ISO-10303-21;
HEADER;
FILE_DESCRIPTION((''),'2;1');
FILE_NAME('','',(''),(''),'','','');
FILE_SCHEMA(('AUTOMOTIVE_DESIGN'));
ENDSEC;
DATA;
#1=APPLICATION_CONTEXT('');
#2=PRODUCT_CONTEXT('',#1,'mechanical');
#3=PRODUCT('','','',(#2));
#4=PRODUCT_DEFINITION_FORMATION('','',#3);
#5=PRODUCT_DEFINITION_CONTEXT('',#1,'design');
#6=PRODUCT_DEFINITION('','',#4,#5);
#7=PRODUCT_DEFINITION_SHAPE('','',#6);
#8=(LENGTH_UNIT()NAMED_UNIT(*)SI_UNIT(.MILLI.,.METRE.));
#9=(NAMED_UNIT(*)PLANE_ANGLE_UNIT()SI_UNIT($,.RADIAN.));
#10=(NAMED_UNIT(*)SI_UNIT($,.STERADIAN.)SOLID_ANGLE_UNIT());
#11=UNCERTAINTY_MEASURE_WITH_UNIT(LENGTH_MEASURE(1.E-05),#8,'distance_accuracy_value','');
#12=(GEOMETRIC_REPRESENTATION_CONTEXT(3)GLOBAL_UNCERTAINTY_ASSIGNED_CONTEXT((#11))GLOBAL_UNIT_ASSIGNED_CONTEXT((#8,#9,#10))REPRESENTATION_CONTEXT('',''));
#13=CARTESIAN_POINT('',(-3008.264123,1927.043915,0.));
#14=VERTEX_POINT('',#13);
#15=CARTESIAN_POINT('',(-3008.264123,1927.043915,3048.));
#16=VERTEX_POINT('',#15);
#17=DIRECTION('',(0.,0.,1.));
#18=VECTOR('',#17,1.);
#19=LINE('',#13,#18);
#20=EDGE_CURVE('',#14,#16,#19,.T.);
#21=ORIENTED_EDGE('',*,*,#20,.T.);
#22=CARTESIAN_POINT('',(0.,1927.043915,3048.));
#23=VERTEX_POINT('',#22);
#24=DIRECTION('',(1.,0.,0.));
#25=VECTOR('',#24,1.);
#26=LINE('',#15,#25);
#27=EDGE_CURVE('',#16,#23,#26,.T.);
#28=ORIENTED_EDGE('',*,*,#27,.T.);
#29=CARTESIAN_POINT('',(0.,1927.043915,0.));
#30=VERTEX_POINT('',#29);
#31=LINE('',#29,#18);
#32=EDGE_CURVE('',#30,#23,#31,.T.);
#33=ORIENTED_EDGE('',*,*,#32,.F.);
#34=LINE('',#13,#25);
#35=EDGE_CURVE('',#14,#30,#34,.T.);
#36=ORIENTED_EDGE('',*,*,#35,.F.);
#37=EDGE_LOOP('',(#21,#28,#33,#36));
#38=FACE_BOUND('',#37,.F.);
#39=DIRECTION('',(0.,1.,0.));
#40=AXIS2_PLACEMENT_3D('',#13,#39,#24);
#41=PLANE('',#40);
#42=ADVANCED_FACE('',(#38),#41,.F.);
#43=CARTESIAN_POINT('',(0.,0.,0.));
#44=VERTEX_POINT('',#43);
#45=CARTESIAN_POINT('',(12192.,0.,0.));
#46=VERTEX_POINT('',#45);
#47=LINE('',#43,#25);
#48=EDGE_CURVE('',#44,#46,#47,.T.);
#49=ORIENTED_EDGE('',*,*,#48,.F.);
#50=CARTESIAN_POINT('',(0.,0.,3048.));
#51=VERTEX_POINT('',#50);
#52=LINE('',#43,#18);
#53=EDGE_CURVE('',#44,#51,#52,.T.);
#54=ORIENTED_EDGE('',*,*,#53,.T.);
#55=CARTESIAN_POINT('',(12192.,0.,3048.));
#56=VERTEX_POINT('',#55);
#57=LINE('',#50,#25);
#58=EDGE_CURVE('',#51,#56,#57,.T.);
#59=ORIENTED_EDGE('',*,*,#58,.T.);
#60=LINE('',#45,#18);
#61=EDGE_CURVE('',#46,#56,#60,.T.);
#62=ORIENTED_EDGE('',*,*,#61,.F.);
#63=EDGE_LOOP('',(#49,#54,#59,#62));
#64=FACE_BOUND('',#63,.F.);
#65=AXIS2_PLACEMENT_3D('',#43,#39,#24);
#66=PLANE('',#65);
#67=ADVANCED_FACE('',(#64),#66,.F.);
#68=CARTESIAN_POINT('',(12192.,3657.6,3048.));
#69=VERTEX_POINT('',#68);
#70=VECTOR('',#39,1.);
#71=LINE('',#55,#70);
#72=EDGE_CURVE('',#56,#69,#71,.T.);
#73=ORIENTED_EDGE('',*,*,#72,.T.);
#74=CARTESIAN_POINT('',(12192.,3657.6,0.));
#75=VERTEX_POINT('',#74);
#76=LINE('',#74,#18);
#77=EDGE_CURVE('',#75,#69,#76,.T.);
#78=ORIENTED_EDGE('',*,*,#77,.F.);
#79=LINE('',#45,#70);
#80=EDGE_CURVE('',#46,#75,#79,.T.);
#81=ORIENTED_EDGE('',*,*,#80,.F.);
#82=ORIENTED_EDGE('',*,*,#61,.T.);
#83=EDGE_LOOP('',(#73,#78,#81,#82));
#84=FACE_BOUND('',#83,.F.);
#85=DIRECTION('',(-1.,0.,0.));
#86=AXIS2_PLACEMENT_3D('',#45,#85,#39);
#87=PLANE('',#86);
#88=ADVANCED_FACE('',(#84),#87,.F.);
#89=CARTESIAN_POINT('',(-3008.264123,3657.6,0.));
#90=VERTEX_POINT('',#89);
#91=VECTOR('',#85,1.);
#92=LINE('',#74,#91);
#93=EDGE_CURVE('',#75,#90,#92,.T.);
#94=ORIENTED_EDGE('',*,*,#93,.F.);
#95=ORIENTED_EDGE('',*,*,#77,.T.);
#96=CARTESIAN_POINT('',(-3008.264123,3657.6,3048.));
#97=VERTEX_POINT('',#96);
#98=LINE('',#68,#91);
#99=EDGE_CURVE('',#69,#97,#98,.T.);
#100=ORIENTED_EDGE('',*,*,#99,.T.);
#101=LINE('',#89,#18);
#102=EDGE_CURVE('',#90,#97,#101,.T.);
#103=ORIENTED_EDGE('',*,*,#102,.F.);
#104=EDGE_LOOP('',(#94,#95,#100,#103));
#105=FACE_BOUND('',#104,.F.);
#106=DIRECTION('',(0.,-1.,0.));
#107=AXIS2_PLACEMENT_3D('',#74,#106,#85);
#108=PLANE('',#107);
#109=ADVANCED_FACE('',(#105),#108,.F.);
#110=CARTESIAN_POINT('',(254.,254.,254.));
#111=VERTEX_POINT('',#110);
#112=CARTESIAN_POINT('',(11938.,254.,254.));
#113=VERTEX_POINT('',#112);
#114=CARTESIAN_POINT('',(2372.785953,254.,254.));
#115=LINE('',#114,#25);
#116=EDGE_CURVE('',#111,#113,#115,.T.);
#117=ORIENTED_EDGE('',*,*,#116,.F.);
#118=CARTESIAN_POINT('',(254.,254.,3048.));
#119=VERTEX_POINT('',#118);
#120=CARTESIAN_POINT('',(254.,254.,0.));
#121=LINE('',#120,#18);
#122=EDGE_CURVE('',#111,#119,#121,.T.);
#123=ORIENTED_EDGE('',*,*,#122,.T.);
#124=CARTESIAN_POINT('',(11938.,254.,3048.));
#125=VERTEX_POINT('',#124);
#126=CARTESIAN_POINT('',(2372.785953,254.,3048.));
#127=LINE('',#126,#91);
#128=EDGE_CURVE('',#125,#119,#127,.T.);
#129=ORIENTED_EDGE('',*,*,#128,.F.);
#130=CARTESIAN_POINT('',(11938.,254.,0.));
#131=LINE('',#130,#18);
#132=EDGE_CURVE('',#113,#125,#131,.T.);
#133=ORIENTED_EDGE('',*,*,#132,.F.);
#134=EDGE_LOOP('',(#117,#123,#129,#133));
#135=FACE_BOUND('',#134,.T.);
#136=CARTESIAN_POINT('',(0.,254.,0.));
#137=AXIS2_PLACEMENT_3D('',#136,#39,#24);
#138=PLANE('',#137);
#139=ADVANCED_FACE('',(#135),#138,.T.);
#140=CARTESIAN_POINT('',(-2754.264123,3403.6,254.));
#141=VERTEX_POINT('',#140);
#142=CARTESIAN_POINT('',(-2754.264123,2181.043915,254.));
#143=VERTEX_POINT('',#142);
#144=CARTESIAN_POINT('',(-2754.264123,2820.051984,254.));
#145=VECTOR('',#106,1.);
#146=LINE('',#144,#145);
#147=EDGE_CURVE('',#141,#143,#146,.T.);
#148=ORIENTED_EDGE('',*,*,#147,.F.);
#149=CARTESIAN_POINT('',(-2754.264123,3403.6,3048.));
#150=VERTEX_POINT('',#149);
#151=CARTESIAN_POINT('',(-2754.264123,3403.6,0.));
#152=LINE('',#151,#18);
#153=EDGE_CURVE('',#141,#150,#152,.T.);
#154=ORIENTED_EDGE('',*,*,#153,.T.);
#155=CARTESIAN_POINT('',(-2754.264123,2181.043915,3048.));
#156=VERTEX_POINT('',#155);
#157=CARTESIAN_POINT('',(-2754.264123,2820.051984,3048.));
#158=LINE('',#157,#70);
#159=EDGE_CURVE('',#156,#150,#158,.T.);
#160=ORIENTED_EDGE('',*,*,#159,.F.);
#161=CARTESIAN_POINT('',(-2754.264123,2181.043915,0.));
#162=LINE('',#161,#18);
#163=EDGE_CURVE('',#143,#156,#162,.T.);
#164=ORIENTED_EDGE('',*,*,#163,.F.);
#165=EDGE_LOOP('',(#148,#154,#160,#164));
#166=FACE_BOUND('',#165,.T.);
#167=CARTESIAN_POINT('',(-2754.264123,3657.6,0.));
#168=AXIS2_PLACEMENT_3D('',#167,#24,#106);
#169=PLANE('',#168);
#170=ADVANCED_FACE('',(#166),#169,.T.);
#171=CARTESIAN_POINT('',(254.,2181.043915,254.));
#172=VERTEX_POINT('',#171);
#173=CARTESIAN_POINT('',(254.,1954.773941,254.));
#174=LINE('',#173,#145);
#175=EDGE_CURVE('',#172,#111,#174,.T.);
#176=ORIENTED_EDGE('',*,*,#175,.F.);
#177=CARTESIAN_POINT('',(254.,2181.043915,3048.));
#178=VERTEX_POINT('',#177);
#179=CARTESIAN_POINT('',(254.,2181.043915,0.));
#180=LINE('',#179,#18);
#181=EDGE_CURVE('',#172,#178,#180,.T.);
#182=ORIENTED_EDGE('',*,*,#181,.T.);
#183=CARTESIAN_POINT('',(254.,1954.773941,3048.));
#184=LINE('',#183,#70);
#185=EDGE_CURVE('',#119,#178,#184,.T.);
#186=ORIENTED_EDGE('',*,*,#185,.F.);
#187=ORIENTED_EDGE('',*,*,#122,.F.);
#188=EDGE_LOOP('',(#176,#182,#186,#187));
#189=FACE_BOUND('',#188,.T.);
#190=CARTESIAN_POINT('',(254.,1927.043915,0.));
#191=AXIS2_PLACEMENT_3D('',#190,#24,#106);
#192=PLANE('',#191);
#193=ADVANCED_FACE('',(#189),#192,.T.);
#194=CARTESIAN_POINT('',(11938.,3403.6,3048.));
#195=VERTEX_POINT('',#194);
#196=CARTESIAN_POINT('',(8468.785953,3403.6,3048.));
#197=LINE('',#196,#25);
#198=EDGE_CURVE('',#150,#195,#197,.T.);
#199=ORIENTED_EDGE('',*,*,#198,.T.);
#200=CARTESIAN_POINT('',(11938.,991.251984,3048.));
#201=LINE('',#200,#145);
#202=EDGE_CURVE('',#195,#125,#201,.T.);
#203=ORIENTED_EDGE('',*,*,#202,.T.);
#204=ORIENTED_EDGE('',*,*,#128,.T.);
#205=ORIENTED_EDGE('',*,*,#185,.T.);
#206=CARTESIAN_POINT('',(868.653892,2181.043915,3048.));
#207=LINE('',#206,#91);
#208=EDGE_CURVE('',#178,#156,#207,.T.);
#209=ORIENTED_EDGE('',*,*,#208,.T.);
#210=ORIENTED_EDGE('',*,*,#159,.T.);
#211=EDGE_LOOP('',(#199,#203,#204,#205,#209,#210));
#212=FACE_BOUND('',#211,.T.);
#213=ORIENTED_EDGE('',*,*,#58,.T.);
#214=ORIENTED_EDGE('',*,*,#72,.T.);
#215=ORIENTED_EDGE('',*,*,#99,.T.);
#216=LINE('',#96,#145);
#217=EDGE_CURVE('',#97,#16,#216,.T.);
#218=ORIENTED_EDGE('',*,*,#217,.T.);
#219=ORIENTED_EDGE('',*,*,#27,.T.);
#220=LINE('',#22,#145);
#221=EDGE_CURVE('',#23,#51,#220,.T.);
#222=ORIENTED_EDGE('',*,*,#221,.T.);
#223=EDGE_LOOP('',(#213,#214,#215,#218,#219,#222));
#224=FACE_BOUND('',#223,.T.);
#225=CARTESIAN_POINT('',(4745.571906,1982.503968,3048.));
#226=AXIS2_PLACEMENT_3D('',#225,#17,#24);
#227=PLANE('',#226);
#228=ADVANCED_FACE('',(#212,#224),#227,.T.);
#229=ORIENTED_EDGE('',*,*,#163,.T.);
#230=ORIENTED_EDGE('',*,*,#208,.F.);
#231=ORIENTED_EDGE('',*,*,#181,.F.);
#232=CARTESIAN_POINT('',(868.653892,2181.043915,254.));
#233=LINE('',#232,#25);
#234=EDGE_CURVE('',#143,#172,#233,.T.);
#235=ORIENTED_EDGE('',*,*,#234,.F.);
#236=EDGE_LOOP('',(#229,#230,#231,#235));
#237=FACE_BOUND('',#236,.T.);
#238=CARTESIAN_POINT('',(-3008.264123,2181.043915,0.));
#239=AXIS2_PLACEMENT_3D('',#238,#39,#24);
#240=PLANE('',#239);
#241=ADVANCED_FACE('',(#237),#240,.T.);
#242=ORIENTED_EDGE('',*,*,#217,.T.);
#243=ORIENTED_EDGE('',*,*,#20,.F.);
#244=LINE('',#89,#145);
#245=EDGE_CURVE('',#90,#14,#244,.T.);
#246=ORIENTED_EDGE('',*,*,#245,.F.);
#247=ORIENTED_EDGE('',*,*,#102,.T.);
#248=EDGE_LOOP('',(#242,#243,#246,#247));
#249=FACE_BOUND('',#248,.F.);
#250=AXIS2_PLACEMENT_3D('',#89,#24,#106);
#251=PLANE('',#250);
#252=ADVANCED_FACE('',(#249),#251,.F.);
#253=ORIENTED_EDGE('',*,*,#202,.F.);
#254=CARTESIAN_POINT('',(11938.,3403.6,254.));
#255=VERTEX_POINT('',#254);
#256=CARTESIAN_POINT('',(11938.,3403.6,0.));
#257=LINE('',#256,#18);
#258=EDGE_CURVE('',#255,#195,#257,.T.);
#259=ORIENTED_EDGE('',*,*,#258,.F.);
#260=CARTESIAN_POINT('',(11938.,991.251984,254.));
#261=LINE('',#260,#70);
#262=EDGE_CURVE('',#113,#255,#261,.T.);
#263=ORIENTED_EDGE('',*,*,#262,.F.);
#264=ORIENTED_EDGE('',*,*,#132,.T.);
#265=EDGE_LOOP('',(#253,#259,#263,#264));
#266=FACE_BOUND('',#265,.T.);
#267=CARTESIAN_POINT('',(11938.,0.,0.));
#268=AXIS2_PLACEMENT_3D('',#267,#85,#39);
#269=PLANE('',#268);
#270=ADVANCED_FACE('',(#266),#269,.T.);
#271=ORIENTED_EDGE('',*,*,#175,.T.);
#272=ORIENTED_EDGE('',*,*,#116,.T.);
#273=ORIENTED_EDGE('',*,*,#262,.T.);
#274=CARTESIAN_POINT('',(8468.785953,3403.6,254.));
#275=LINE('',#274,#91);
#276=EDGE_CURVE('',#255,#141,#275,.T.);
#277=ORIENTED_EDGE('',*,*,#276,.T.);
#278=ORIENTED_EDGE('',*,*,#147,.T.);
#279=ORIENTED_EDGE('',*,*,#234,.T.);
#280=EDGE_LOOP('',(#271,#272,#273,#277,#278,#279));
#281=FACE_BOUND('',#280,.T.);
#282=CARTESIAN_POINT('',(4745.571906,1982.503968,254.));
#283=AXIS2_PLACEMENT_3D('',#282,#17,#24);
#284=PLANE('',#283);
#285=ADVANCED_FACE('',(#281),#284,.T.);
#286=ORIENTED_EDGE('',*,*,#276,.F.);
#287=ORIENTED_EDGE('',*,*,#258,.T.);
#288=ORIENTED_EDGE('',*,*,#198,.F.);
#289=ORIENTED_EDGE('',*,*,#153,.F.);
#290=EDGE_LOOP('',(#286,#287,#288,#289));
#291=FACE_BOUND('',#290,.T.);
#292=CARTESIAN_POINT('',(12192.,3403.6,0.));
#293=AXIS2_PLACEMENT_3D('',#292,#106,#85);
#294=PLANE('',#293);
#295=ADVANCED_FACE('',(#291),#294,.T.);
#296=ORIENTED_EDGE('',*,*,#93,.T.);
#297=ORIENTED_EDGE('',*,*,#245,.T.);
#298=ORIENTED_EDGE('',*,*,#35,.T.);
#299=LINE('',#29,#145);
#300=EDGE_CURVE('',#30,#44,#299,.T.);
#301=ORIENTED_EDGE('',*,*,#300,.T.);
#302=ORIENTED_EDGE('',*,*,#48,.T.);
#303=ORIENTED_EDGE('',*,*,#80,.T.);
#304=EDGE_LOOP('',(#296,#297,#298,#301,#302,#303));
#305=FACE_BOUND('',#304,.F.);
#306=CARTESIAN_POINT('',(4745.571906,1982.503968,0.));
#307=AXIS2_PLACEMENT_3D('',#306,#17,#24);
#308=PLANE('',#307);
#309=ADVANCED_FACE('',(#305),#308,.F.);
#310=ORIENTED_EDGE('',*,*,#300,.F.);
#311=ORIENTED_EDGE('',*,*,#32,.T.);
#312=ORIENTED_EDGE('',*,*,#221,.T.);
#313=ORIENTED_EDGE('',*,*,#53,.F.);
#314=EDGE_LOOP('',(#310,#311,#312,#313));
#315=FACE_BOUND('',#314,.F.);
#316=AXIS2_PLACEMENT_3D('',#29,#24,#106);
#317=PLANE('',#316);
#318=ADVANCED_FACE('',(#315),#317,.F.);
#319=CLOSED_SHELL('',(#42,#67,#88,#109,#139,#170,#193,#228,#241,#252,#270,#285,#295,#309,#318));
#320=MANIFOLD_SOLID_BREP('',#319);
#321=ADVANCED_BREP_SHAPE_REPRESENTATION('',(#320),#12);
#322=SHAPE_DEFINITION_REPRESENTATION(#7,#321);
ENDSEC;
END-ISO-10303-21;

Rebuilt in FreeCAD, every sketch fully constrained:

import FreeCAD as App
import Part
import Sketcher

V = App.Vector
Q = App.Units.Quantity


def faces_at(feature, points):
    """Names of the faces that lie closest to the given points."""
    faces = feature.Shape.Faces
    near = lambda p: min(range(len(faces)), key=lambda i: faces[i].distToShape(Part.Vertex(*p))[0])
    return sorted({f"Face{near(p) + 1}" for p in points})


def add_polygon(sketch, points):
    """Adds a closed chain of lines whose ends are joined by coincident constraints."""
    first, n = sketch.GeometryCount, len(points)
    for a, b in zip(points, points[1:] + points[:1]):
        sketch.addGeometry(Part.LineSegment(App.Vector(*a, 0), App.Vector(*b, 0)), False)
    for i in range(n):
        sketch.addConstraint(Sketcher.Constraint("Coincident", first + i, 2, first + (i + 1) % n, 1))

doc = App.newDocument("Part")
body = doc.addObject("PartDesign::Body", "Body")

sketch1 = doc.addObject("Sketcher::SketchObject", "Sketch")
body.addObject(sketch1)
sketch1.AttachmentSupport = (doc.XY_Plane, [""])
sketch1.MapMode = "FlatFace"
add_polygon(sketch1, [(0, 1927), (0, 0), (12192, 0), (12192, 3658), (-3008, 3658), (-3008, 1927)])
sketch1.addConstraint(Sketcher.Constraint("Vertical", 0))
sketch1.addConstraint(Sketcher.Constraint("Horizontal", 1))
sketch1.addConstraint(Sketcher.Constraint("Vertical", 2))
sketch1.addConstraint(Sketcher.Constraint("Horizontal", 3))
sketch1.addConstraint(Sketcher.Constraint("Vertical", 4))
sketch1.addConstraint(Sketcher.Constraint("Horizontal", 5))
sketch1.addConstraint(Sketcher.Constraint("Coincident", 0, 2, -1, 1))
sketch1.addConstraint(Sketcher.Constraint("DistanceX", 1, 1, 1, 2, Q("480 in")))
sketch1.addConstraint(Sketcher.Constraint("DistanceY", 2, 1, 2, 2, Q("144 in")))
sketch1.addConstraint(Sketcher.Constraint("DistanceX", 3, 2, 3, 1, 15200.264123))
sketch1.addConstraint(Sketcher.Constraint("DistanceY", 0, 2, 0, 1, 1927.043915))
pad1 = doc.addObject("PartDesign::Pad", "Pad")
body.addObject(pad1)
pad1.Profile = sketch1
pad1.Length = Q("120 in")
doc.recompute()

thickness = doc.addObject("PartDesign::Thickness", "Thickness")
body.addObject(thickness)
thickness.Base = (pad1, faces_at(pad1, [(4591.868, 1828.8, 3048)]))
thickness.Value = Q("10 in")
thickness.Reversed = True
thickness.Join = "Intersection"

doc.recompute()
